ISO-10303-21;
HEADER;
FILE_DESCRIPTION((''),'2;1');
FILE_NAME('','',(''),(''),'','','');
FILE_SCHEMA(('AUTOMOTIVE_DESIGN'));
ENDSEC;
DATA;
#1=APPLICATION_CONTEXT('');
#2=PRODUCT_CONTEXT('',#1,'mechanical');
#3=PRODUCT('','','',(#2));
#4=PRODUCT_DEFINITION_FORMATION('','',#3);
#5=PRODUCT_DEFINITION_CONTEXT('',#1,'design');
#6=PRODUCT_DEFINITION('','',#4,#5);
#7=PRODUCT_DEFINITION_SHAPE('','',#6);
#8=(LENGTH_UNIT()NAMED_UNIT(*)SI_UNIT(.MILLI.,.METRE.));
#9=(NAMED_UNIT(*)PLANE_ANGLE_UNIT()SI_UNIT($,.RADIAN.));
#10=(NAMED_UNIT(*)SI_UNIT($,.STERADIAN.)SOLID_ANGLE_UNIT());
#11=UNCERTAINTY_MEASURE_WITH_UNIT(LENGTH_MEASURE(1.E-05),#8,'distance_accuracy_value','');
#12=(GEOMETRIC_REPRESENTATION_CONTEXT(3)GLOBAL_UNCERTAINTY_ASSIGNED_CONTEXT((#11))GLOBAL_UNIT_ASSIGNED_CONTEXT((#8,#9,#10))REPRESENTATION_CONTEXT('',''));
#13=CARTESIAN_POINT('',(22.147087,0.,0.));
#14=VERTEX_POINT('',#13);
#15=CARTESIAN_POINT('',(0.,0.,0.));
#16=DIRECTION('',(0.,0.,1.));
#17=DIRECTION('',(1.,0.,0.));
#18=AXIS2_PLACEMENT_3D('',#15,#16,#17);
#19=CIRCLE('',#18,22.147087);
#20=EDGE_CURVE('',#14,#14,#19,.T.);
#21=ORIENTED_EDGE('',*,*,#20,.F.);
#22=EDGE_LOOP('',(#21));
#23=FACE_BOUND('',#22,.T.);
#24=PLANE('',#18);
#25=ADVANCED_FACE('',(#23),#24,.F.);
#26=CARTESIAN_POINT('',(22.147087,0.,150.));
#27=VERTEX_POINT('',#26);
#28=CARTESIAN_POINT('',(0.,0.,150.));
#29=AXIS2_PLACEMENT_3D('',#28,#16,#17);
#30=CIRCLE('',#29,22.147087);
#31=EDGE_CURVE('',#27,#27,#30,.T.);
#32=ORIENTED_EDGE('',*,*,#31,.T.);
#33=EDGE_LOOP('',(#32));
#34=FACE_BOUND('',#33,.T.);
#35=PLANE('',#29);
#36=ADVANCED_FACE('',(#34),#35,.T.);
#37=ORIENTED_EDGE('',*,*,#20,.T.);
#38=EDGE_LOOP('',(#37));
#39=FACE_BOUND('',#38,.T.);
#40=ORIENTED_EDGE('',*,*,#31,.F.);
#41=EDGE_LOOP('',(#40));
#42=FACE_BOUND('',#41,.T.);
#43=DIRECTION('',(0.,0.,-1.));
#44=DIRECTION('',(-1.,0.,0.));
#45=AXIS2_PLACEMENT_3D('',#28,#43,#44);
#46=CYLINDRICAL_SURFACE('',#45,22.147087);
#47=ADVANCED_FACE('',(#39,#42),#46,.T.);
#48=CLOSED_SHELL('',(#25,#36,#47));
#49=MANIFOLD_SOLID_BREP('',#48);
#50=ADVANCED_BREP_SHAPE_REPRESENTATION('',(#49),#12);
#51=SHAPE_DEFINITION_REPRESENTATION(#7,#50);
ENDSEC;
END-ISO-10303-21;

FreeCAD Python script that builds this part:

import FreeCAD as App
import Part
import Sketcher
from FreeCAD import Vector

doc = App.newDocument("Part")
params = doc.addObject("Spreadsheet::Sheet", "Params")
for row, (alias, value) in enumerate([
    ("pad1_length", "150 mm"),
], start=1):
    params.set(f"A{row}", alias)
    params.set(f"B{row}", "=" + value)
    params.setAlias(f"B{row}", alias)

body = doc.addObject("PartDesign::Body", "Body")

sketch1 = body.newObject("Sketcher::SketchObject", "Sketch")
sketch1.AttachmentSupport = (doc.getObject("XY_Plane"), [""])
sketch1.MapMode = "FlatFace"
sketch1.addGeometry(Part.Circle(Vector(0, 0, 0), Vector(0, 0, 1), 22.147087), False)
sketch1.addConstraint(Sketcher.Constraint("Coincident", 0, 3, -1, 1))
sketch1.addConstraint(Sketcher.Constraint("Diameter", 0, 44.294174))
pad1 = body.newObject("PartDesign::Pad", "Pad")
pad1.Profile = sketch1
pad1.setExpression("Length", "Params.pad1_length")

doc.recompute()
